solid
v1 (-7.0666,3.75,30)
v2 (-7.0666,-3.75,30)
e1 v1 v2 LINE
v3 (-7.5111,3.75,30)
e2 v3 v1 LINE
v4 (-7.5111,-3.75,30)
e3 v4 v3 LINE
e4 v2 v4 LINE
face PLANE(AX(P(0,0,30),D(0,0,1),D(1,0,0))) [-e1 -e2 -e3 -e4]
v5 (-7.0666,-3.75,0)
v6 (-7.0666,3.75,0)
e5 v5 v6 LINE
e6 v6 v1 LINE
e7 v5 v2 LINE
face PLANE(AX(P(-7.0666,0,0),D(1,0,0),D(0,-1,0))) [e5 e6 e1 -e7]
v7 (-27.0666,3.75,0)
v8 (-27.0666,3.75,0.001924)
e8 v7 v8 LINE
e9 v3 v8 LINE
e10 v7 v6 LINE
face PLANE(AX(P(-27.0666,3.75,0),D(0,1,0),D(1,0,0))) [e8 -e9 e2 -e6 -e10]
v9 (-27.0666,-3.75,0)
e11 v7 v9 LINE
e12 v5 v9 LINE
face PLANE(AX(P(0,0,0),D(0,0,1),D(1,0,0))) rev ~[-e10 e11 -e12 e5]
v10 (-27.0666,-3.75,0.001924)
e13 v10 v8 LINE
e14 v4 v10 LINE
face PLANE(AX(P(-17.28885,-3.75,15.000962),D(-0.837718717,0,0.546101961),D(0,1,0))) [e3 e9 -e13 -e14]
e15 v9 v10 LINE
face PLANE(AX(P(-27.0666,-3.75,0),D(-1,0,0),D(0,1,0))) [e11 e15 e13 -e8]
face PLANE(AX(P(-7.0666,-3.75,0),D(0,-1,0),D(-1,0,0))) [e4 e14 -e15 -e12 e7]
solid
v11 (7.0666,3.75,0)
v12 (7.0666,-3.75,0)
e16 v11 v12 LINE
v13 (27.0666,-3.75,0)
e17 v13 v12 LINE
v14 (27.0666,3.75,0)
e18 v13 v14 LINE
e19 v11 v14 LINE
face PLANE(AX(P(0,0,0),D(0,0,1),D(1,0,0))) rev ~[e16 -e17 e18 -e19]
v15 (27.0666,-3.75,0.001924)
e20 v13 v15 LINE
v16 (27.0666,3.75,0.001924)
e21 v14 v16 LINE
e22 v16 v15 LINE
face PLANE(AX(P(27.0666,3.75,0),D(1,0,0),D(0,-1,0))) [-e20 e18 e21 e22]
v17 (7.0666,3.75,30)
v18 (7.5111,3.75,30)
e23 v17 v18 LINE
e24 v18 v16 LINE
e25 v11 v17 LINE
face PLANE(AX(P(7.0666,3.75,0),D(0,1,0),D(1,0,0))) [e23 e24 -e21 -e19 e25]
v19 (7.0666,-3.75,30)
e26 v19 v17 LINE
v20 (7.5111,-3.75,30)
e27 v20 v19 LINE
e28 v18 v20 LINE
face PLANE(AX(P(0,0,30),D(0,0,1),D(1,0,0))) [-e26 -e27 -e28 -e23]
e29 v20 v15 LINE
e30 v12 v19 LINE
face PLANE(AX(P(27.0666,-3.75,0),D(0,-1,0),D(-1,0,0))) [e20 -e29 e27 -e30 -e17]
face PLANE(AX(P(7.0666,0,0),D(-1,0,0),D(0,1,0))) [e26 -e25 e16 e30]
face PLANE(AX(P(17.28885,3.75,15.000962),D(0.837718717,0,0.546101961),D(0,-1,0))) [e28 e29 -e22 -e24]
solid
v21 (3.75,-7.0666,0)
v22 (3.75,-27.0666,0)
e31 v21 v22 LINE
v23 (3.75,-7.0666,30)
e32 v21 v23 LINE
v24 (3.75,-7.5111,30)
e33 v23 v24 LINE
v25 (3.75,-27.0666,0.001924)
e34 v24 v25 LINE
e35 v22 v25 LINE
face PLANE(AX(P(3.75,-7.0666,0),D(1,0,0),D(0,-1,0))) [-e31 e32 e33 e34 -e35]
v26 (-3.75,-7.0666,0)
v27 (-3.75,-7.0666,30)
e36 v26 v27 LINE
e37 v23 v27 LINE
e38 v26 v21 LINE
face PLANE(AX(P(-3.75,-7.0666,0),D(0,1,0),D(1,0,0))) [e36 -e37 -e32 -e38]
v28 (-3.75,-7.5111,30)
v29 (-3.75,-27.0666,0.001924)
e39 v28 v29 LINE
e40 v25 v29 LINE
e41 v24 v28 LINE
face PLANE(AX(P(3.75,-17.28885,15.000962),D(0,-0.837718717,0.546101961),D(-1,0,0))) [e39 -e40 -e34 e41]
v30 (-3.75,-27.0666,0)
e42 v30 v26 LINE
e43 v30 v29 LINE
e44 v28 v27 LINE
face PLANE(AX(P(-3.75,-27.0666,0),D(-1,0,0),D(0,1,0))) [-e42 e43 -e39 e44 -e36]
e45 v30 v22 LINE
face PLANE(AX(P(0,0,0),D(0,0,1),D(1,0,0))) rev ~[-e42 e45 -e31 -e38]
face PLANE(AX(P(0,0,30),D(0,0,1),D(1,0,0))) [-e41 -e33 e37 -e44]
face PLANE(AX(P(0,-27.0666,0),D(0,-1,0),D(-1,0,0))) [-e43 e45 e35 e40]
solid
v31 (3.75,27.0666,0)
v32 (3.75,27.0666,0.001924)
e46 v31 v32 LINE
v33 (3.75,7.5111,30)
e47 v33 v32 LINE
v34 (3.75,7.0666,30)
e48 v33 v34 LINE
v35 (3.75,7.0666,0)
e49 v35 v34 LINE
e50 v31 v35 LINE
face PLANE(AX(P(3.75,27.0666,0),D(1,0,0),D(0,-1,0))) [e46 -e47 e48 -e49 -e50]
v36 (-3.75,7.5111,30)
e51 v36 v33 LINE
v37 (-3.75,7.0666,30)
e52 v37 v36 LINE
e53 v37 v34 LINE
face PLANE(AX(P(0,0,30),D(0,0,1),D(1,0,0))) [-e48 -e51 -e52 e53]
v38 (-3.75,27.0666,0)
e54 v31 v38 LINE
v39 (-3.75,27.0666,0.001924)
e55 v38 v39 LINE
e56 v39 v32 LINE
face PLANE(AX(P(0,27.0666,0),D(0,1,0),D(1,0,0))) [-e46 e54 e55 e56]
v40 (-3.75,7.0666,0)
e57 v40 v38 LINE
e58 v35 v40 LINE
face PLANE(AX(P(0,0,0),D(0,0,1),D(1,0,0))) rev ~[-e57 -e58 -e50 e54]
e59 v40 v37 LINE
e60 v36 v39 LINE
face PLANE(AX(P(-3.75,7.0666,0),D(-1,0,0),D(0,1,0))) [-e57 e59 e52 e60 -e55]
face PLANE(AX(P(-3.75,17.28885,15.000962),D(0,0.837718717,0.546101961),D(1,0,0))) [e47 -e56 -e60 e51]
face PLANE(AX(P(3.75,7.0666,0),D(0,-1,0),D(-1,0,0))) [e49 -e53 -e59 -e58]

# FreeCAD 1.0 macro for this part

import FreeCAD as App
import Part
import Sketcher
from FreeCAD import Vector


def edges_at(feature, points):
    """Names of the edges that pass closest to the given points."""
    edges = feature.Shape.Edges
    near = lambda p: min(range(len(edges)), key=lambda i: edges[i].distToShape(Part.Vertex(*p))[0])
    return sorted({f"Edge{near(p) + 1}" for p in points})


def add_polygon(sketch, points):
    """Adds a closed chain of lines whose ends are joined by coincident constraints."""
    first, n = sketch.GeometryCount, len(points)
    for a, b in zip(points, points[1:] + points[:1]):
        sketch.addGeometry(Part.LineSegment(App.Vector(*a, 0), App.Vector(*b, 0)), False)
    for i in range(n):
        sketch.addConstraint(Sketcher.Constraint("Coincident", first + i, 2, first + (i + 1) % n, 1))

doc = App.newDocument("Part")
body = doc.addObject("PartDesign::Body", "Body")
body.AllowCompound = True

# Sketch on XY plane
sketch1 = doc.addObject("Sketcher::SketchObject", "Sketch")
body.addObject(sketch1)
sketch1.AttachmentSupport = (doc.XY_Plane, [""])
sketch1.MapMode = "FlatFace"
add_polygon(sketch1, [(27, 4), (7, 4), (7, -4), (27, -4)])  # lines 0-3
add_polygon(sketch1, [(4, 27), (-4, 27), (-4, 7), (4, 7)])  # lines 4-7
add_polygon(sketch1, [(-4, -27), (4, -27), (4, -7), (-4, -7)])  # lines 8-11
add_polygon(sketch1, [(-27, -4), (-7, -4), (-7, 4), (-27, 4)])  # lines 12-15
sketch1.addConstraint(Sketcher.Constraint("Horizontal", 0))
sketch1.addConstraint(Sketcher.Constraint("Vertical", 1))
sketch1.addConstraint(Sketcher.Constraint("Horizontal", 2))
sketch1.addConstraint(Sketcher.Constraint("Vertical", 3))
sketch1.addConstraint(Sketcher.Constraint("Horizontal", 4))
sketch1.addConstraint(Sketcher.Constraint("Vertical", 5))
sketch1.addConstraint(Sketcher.Constraint("Horizontal", 6))
sketch1.addConstraint(Sketcher.Constraint("Vertical", 7))
sketch1.addConstraint(Sketcher.Constraint("Horizontal", 8))
sketch1.addConstraint(Sketcher.Constraint("Vertical", 9))
sketch1.addConstraint(Sketcher.Constraint("Horizontal", 10))
sketch1.addConstraint(Sketcher.Constraint("Vertical", 11))
sketch1.addConstraint(Sketcher.Constraint("Horizontal", 12))
sketch1.addConstraint(Sketcher.Constraint("Vertical", 13))
sketch1.addConstraint(Sketcher.Constraint("Horizontal", 14))
sketch1.addConstraint(Sketcher.Constraint("Vertical", 15))
sketch1.addConstraint(Sketcher.Constraint("Symmetric", 4, 2, 8, 2, -1, 1))
sketch1.addConstraint(Sketcher.Constraint("Symmetric", 6, 2, 10, 2, -1, 1))
sketch1.addConstraint(Sketcher.Constraint("Symmetric", 0, 2, 12, 2, -1, 1))
sketch1.addConstraint(Sketcher.Constraint("Symmetric", 2, 2, 14, 2, -1, 1))
sketch1.addConstraint(Sketcher.Constraint("Horizontal", 2, 2, 12, 2))
sketch1.addConstraint(Sketcher.Constraint("Vertical", 7, 2, 8, 2))
sketch1.addConstraint(Sketcher.Constraint("Equal", 10, 1))
sketch1.addConstraint(Sketcher.Constraint("Equal", 14, 5))
sketch1.addConstraint(Sketcher.Constraint("DistanceX", 0, 2, 0, 1, 20.0))
sketch1.addConstraint(Sketcher.Constraint("DistanceX", 4, 2, 4, 1, 7.5))
sketch1.addConstraint(Sketcher.Constraint("DistanceX", -1, 1, 0, 2, 7.0666))
sketch1.addConstraint(Sketcher.Constraint("DistanceY", -1, 1, 4, 2, 27.0666))
pad1 = doc.addObject("PartDesign::Pad", "Pad")
body.addObject(pad1)
pad1.Profile = sketch1
pad1.Length = 30
doc.recompute()

chamfer = doc.addObject("PartDesign::Chamfer", "Chamfer")
body.addObject(chamfer)
chamfer.Base = (pad1, edges_at(pad1, [(0, 27.067, 30)]))
chamfer.ChamferType = "Distance and Angle"
chamfer.Size = 19.5555
chamfer.Angle = 56.9
chamfer.FlipDirection = True
doc.recompute()

chamfer2 = doc.addObject("PartDesign::Chamfer", "Chamfer001")
body.addObject(chamfer2)
chamfer2.Base = (chamfer, edges_at(chamfer, [(27.067, 0, 30)]))
chamfer2.ChamferType = "Distance and Angle"
chamfer2.Size = 19.5555
chamfer2.Angle = 56.9
chamfer2.FlipDirection = True
doc.recompute()

chamfer3 = doc.addObject("PartDesign::Chamfer", "Chamfer002")
body.addObject(chamfer3)
chamfer3.Base = (chamfer2, edges_at(chamfer2, [(-27.067, 0, 30)]))
chamfer3.ChamferType = "Distance and Angle"
chamfer3.Size = 19.5555
chamfer3.Angle = 56.9
chamfer3.FlipDirection = True
doc.recompute()

chamfer4 = doc.addObject("PartDesign::Chamfer", "Chamfer003")
body.addObject(chamfer4)
chamfer4.Base = (chamfer3, edges_at(chamfer3, [(0, -27.067, 30)]))
chamfer4.ChamferType = "Distance and Angle"
chamfer4.Size = 19.5555
chamfer4.Angle = 56.9
chamfer4.FlipDirection = True

doc.recompute()
